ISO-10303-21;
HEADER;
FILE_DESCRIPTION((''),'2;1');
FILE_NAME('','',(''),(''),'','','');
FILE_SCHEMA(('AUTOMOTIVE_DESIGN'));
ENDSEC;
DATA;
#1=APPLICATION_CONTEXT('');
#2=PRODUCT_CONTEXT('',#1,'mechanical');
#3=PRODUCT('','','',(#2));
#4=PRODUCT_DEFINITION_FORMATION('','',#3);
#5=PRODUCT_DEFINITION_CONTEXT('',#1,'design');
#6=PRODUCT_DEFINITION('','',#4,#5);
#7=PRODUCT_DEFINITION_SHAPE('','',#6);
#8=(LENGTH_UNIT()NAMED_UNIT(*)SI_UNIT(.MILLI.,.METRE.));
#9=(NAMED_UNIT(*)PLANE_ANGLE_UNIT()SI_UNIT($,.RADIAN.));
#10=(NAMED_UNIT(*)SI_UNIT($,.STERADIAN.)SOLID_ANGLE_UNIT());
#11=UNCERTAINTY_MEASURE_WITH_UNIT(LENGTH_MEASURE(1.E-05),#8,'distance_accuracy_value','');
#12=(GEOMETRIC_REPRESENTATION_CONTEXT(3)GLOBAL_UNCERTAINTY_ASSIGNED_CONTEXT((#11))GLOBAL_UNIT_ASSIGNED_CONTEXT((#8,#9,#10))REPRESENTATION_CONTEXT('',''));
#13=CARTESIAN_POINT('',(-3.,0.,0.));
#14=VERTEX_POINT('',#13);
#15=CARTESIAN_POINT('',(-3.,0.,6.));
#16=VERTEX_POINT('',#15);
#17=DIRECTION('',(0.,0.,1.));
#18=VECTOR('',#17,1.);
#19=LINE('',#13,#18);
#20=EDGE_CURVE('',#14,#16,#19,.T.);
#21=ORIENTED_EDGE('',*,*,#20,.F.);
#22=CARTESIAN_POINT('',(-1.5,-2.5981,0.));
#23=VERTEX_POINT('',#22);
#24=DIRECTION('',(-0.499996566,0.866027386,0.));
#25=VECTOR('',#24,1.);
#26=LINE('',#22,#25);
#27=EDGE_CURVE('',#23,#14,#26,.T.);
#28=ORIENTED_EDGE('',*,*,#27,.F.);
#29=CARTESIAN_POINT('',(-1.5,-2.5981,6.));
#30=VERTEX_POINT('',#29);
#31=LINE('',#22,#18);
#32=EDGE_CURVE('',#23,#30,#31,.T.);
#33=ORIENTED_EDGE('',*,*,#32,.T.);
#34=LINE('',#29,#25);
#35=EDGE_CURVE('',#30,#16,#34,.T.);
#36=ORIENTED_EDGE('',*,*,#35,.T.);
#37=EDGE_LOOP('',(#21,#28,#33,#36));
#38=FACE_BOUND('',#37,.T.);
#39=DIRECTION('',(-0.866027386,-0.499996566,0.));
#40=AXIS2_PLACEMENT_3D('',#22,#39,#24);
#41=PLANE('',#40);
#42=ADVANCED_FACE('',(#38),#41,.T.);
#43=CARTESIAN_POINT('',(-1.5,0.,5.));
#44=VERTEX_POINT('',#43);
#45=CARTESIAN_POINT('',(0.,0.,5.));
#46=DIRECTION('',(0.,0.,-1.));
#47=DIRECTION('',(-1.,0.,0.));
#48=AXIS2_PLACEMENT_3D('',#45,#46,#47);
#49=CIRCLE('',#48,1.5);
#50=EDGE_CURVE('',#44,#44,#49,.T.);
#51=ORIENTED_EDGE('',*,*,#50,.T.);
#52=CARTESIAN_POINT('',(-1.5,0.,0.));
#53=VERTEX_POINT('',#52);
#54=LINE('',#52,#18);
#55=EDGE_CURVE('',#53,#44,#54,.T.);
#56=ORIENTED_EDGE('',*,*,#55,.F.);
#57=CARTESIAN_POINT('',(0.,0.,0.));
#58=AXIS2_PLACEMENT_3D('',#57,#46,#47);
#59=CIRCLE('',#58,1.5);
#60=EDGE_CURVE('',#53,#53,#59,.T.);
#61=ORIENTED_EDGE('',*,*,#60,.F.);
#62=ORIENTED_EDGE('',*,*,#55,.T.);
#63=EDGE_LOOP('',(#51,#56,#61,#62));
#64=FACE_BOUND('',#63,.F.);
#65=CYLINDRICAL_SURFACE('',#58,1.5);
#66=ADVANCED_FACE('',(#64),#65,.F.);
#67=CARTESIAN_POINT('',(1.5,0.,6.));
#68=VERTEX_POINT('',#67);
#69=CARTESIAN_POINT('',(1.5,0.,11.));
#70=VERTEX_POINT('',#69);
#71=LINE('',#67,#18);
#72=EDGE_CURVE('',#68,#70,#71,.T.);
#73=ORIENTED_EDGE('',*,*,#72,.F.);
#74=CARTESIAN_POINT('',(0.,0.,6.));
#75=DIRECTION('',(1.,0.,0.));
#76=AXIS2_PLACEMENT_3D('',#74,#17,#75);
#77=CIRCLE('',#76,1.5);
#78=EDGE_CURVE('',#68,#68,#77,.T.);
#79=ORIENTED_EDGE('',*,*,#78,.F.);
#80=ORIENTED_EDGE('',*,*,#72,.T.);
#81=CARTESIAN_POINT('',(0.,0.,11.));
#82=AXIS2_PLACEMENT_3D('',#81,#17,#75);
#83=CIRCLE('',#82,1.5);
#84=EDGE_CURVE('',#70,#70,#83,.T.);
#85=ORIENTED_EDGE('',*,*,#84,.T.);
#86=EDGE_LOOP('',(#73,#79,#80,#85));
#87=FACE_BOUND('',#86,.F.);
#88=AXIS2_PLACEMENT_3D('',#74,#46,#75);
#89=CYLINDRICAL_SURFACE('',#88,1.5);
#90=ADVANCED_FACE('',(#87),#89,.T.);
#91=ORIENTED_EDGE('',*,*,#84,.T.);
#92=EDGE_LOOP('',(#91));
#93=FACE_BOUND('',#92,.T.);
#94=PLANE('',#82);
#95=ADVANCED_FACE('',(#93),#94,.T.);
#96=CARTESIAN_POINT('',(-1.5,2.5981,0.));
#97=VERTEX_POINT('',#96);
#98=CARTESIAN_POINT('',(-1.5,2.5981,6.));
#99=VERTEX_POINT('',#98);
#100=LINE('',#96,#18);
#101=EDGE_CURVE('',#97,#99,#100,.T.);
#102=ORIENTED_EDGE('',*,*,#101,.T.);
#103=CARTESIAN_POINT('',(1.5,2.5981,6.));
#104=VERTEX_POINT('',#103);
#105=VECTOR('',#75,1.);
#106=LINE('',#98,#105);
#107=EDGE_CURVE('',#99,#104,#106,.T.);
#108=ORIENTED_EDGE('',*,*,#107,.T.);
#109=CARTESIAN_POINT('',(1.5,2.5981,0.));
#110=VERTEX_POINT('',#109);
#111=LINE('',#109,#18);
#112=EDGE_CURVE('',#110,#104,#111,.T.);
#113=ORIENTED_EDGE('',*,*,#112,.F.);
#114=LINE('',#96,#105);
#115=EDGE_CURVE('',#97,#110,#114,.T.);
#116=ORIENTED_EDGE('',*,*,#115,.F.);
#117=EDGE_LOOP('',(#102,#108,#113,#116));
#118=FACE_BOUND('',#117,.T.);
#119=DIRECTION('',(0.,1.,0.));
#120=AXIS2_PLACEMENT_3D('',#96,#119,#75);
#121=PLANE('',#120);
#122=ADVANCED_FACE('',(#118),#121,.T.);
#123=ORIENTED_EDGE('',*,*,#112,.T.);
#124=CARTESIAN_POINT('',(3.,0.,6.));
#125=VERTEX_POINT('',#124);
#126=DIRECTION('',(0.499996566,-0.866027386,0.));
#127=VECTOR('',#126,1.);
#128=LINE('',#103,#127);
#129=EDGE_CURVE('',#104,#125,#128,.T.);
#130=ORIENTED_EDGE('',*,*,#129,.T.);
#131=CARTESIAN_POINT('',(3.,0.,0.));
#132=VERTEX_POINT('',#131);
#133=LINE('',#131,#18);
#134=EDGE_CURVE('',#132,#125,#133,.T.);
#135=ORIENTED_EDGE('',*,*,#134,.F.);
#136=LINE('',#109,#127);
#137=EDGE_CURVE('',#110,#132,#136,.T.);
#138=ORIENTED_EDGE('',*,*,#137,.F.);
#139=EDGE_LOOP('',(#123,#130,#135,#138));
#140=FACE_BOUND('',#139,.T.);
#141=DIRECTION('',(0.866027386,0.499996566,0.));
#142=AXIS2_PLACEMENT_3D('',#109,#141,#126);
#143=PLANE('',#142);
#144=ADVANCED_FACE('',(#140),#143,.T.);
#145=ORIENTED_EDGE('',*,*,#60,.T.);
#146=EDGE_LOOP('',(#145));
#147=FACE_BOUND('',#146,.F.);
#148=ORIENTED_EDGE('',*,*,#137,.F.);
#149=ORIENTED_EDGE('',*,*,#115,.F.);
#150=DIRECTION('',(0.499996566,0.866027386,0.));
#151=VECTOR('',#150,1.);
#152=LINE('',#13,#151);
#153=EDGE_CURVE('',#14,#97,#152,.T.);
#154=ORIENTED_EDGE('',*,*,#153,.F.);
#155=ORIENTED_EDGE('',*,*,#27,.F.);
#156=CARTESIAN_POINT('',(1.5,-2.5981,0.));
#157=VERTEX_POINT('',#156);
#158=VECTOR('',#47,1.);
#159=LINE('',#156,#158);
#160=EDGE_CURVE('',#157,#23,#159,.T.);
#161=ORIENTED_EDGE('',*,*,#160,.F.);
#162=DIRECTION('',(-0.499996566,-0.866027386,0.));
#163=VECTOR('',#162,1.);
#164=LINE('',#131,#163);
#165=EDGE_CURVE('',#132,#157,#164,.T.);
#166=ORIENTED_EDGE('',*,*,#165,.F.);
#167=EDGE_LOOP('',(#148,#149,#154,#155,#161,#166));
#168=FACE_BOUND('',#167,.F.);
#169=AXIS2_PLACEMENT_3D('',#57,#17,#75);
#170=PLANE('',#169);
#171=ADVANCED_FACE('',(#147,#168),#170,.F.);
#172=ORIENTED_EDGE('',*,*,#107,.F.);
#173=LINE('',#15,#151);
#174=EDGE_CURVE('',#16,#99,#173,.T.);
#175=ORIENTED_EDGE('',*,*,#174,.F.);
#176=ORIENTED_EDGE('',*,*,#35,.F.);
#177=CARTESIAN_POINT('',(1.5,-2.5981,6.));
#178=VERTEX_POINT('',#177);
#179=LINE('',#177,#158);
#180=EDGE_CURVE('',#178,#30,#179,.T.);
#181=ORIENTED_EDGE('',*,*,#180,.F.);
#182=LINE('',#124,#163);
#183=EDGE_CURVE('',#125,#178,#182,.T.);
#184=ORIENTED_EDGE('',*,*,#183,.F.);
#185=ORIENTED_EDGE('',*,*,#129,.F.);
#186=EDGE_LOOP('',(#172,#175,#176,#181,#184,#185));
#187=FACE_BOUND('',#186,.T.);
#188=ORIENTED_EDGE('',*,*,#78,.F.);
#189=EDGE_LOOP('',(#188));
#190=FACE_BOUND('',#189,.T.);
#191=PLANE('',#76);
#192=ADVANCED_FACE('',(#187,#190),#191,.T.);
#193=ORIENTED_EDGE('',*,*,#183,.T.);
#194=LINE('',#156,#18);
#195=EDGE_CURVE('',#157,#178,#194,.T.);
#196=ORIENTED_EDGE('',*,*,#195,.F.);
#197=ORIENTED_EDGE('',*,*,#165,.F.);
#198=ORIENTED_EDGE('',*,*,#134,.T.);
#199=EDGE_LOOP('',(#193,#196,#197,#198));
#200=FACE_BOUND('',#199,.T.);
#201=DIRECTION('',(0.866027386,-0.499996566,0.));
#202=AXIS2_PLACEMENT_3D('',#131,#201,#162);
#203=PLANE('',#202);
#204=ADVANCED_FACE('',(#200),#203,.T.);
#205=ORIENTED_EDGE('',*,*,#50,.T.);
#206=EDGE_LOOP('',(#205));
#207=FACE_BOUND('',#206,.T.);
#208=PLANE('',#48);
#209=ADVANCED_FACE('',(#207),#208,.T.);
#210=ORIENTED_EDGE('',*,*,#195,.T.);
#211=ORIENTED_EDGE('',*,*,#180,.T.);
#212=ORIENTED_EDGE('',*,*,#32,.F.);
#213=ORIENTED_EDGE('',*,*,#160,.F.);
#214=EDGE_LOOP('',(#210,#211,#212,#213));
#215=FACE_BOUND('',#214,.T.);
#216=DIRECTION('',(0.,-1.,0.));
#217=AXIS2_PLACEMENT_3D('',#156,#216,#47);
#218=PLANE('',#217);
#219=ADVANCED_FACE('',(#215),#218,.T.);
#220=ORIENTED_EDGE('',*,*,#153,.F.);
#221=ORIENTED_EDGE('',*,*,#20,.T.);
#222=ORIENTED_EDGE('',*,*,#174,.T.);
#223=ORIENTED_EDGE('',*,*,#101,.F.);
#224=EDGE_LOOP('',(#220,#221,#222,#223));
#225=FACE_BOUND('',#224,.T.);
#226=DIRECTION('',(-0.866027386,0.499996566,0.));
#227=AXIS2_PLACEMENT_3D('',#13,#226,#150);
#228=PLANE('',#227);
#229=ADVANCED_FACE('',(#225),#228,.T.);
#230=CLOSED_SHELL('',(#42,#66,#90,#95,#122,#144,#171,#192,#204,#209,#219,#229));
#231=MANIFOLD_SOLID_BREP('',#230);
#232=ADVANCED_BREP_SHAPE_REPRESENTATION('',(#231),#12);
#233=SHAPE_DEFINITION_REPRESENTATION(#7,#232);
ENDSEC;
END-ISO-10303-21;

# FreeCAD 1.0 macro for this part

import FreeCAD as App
import Part
import Sketcher
Q = App.Units.Quantity

doc = App.newDocument("Part")
body = doc.addObject("PartDesign::Body", "Body")

# Sketch on XY plane
sketch1 = body.newObject("Sketcher::SketchObject", "Sketch")
sketch1.AttachmentSupport = (doc.getObject("XY_Plane"), [""])
sketch1.MapMode = "FlatFace"
sketch1.addGeometry(Part.LineSegment(App.Vector(-1.5, 2.6, 0), App.Vector(-3, 0, 0)), False)
sketch1.addGeometry(Part.LineSegment(App.Vector(-3, 0, 0), App.Vector(-1.5, -2.6, 0)), False)
sketch1.addGeometry(Part.LineSegment(App.Vector(-1.5, -2.6, 0), App.Vector(1.5, -2.6, 0)), False)
sketch1.addGeometry(Part.LineSegment(App.Vector(1.5, -2.6, 0), App.Vector(3, 0, 0)), False)
sketch1.addGeometry(Part.LineSegment(App.Vector(3, 0, 0), App.Vector(1.5, 2.6, 0)), False)
sketch1.addGeometry(Part.LineSegment(App.Vector(1.5, 2.6, 0), App.Vector(-1.5, 2.6, 0)), False)
sketch1.addConstraint(Sketcher.Constraint("Coincident", 0, 2, 1, 1))
sketch1.addConstraint(Sketcher.Constraint("Coincident", 1, 2, 2, 1))
sketch1.addConstraint(Sketcher.Constraint("Coincident", 2, 2, 3, 1))
sketch1.addConstraint(Sketcher.Constraint("Coincident", 3, 2, 4, 1))
sketch1.addConstraint(Sketcher.Constraint("Coincident", 4, 2, 5, 1))
sketch1.addConstraint(Sketcher.Constraint("Coincident", 5, 2, 0, 1))
sketch1.addConstraint(Sketcher.Constraint("Horizontal", 2))
sketch1.addConstraint(Sketcher.Constraint("Horizontal", 5))
sketch1.addConstraint(Sketcher.Constraint("Symmetric", 0, 2, 3, 2, -1, 1))
sketch1.addConstraint(Sketcher.Constraint("Symmetric", 1, 2, 4, 2, -1, 1))
sketch1.addConstraint(Sketcher.Constraint("PointOnObject", 0, 2, -1))
sketch1.addConstraint(Sketcher.Constraint("Parallel", 0, 3))
sketch1.addConstraint(Sketcher.Constraint("Vertical", 2, 2, 4, 2))
sketch1.addConstraint(Sketcher.Constraint("DistanceX", 0, 2, 3, 2, 6.0))
sketch1.addConstraint(Sketcher.Constraint("DistanceX", 2, 1, 2, 2, 3.0))
sketch1.addConstraint(Sketcher.Constraint("Angle", 0, Q("-119.9998 deg")))
pad1 = body.newObject("PartDesign::Pad", "Pad")
pad1.Profile = sketch1
pad1.Length = 6

# Sketch on XY plane
sketch2 = body.newObject("Sketcher::SketchObject", "Sketch001")
sketch2.AttachmentSupport = (doc.getObject("XY_Plane"), [""])
sketch2.MapMode = "FlatFace"
sketch2.AttachmentOffset = App.Placement(App.Vector(0, 0, 6), App.Rotation())
sketch2.addGeometry(Part.Circle(App.Vector(0, 0, 0), App.Vector(0, 0, 1), 1.5), False)
sketch2.addConstraint(Sketcher.Constraint("Coincident", 0, 3, -1, 1))
sketch2.addConstraint(Sketcher.Constraint("Diameter", 0, 3.0))
pad2 = body.newObject("PartDesign::Pad", "Pad001")
pad2.Profile = sketch2
pad2.Length = 5

# Sketch on XY plane
sketch3 = body.newObject("Sketcher::SketchObject", "Sketch002")
sketch3.AttachmentSupport = (doc.getObject("XY_Plane"), [""])
sketch3.MapMode = "FlatFace"
sketch3.addGeometry(Part.Circle(App.Vector(0, 0, 0), App.Vector(0, 0, 1), 1.5), False)
sketch3.addConstraint(Sketcher.Constraint("Coincident", 0, 3, -1, 1))
sketch3.addConstraint(Sketcher.Constraint("Diameter", 0, 3.0))
pocket1 = body.newObject("PartDesign::Pocket", "Pocket")
pocket1.Profile = sketch3
pocket1.Length = 5
pocket1.Reversed = True

doc.recompute()
